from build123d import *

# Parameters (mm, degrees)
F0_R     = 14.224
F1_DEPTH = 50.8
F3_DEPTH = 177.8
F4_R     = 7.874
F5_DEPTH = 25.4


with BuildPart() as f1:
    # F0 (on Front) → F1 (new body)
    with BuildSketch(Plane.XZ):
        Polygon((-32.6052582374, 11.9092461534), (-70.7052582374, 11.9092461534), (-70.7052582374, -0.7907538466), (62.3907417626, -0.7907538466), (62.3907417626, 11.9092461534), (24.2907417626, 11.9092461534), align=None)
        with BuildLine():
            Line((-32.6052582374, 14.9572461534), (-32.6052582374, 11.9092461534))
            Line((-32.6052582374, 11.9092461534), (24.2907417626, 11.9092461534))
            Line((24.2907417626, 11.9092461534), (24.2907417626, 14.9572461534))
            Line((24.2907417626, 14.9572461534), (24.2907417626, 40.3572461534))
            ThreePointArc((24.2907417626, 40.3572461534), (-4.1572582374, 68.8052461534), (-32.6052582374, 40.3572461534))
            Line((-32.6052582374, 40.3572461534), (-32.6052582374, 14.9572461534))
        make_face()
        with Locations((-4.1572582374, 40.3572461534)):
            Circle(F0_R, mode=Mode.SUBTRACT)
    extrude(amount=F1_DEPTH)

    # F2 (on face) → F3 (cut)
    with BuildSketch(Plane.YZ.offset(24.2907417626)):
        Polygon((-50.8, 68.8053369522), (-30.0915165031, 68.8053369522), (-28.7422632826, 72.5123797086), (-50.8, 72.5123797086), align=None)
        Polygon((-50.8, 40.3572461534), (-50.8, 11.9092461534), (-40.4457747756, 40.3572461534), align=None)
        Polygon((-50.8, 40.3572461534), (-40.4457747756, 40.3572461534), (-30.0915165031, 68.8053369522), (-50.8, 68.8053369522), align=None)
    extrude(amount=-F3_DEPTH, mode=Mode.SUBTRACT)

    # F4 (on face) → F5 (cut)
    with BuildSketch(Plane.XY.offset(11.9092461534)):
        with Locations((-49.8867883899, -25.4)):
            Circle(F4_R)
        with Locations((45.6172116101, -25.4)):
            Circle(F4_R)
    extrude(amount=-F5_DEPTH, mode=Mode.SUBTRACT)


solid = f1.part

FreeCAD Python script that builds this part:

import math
import FreeCAD as App
import Part
import Sketcher

V = App.Vector
Q = App.Units.Quantity


def add_polygon(sketch, points):
    """Adds a closed chain of lines whose ends are joined by coincident constraints."""
    first, n = sketch.GeometryCount, len(points)
    for a, b in zip(points, points[1:] + points[:1]):
        sketch.addGeometry(Part.LineSegment(App.Vector(*a, 0), App.Vector(*b, 0)), False)
    for i in range(n):
        sketch.addConstraint(Sketcher.Constraint("Coincident", first + i, 2, first + (i + 1) % n, 1))

doc = App.newDocument("Part")
body = doc.addObject("PartDesign::Body", "Body")

sketch1 = body.newObject("Sketcher::SketchObject", "Sketch")
sketch1.AttachmentSupport = (doc.getObject("XZ_Plane"), [""])
sketch1.MapMode = "FlatFace"
sketch1.addGeometry(Part.LineSegment(V(-71, 12, 0), V(-71, -1, 0)), False)
sketch1.addGeometry(Part.LineSegment(V(-71, -1, 0), V(62, -1, 0)), False)
sketch1.addGeometry(Part.LineSegment(V(62, -1, 0), V(62, 12, 0)), False)
sketch1.addGeometry(Part.LineSegment(V(62, 12, 0), V(24, 12, 0)), False)
sketch1.addGeometry(Part.LineSegment(V(24, 12, 0), V(24, 40, 0)), False)
sketch1.addGeometry(Part.ArcOfCircle(Part.Circle(V(-4, 40, 0), V(0, 0, 1), 28), math.radians(0), math.radians(180)), False)
sketch1.addGeometry(Part.LineSegment(V(-33, 40, 0), V(-33, 12, 0)), False)
sketch1.addGeometry(Part.LineSegment(V(-33, 12, 0), V(-71, 12, 0)), False)
sketch1.addGeometry(Part.Circle(V(-4, 40, 0), V(0, 0, 1), 14), False)
sketch1.addConstraint(Sketcher.Constraint("Coincident", 0, 2, 1, 1))
sketch1.addConstraint(Sketcher.Constraint("Coincident", 1, 2, 2, 1))
sketch1.addConstraint(Sketcher.Constraint("Coincident", 2, 2, 3, 1))
sketch1.addConstraint(Sketcher.Constraint("Coincident", 3, 2, 4, 1))
sketch1.addConstraint(Sketcher.Constraint("Tangent", 4, 2, 5, 1))
sketch1.addConstraint(Sketcher.Constraint("Tangent", 5, 2, 6, 1))
sketch1.addConstraint(Sketcher.Constraint("Coincident", 6, 2, 7, 1))
sketch1.addConstraint(Sketcher.Constraint("Coincident", 7, 2, 0, 1))
sketch1.addConstraint(Sketcher.Constraint("Vertical", 0))
sketch1.addConstraint(Sketcher.Constraint("Horizontal", 1))
sketch1.addConstraint(Sketcher.Constraint("Vertical", 2))
sketch1.addConstraint(Sketcher.Constraint("Horizontal", 3))
sketch1.addConstraint(Sketcher.Constraint("Vertical", 4))
sketch1.addConstraint(Sketcher.Constraint("Vertical", 6))
sketch1.addConstraint(Sketcher.Constraint("Horizontal", 7))
sketch1.addConstraint(Sketcher.Constraint("Coincident", 8, 3, 5, 3))
sketch1.addConstraint(Sketcher.Constraint("Horizontal", 3, 2, 6, 2))
sketch1.addConstraint(Sketcher.Constraint("Equal", 3, 7))
sketch1.addConstraint(Sketcher.Constraint("Diameter", 8, Q("1.12 in")))
sketch1.addConstraint(Sketcher.Constraint("Radius", 5, Q("1.12 in")))
sketch1.addConstraint(Sketcher.Constraint("DistanceX", 3, 2, 3, 1, Q("1.5 in")))
sketch1.addConstraint(Sketcher.Constraint("DistanceY", 0, 2, 0, 1, Q("0.5 in")))
sketch1.addConstraint(Sketcher.Constraint("DistanceY", 4, 1, 4, 2, Q("1.12 in")))
sketch1.addConstraint(Sketcher.Constraint("DistanceX", 5, 3, -1, 1, Q("4.157258 mm")))
sketch1.addConstraint(Sketcher.Constraint("DistanceY", -1, 1, 5, 3, Q("40.357246 mm")))
pad1 = body.newObject("PartDesign::Pad", "Pad")
pad1.Profile = sketch1
pad1.Length = Q("2 in")

sketch2 = body.newObject("Sketcher::SketchObject", "Sketch001")
sketch2.AttachmentSupport = (doc.getObject("YZ_Plane"), [""])
sketch2.MapMode = "FlatFace"
sketch2.AttachmentOffset = App.Placement(V(0, 0, 24.290742), App.Rotation())
add_polygon(sketch2, [(-30.1, 68.8), (-28.7, 72.5), (-50.8, 72.5), (-50.8, 11.9), (-40.4, 40.4)])
sketch2.addConstraint(Sketcher.Constraint("Horizontal", 1))
sketch2.addConstraint(Sketcher.Constraint("Vertical", 2))
sketch2.addConstraint(Sketcher.Constraint("Parallel", 0, 3))
sketch2.addConstraint(Sketcher.Constraint("Parallel", 3, 4))
sketch2.addConstraint(Sketcher.Constraint("DistanceX", 1, 2, -1, 1, Q("2 in")))
sketch2.addConstraint(Sketcher.Constraint("Angle", 0, Q("70 deg")))
sketch2.addConstraint(Sketcher.Constraint("DistanceY", 2, 2, 3, 2, Q("1.12 in")))
sketch2.addConstraint(Sketcher.Constraint("DistanceX", 1, 2, 1, 1, Q("22.057737 mm")))
sketch2.addConstraint(Sketcher.Constraint("DistanceY", -1, 1, 0, 2, Q("72.51238 mm")))
sketch2.addConstraint(Sketcher.Constraint("DistanceX", 3, 2, 4, 2, Q("10.354258 mm")))
pocket1 = body.newObject("PartDesign::Pocket", "Pocket")
pocket1.Profile = sketch2
pocket1.Length = Q("7 in")

sketch3 = body.newObject("Sketcher::SketchObject", "Sketch002")
sketch3.AttachmentSupport = (doc.getObject("XY_Plane"), [""])
sketch3.MapMode = "FlatFace"
sketch3.AttachmentOffset = App.Placement(V(0, 0, 11.909246), App.Rotation())
sketch3.addGeometry(Part.Circle(V(-50, -25, 0), V(0, 0, 1), 8), False)
sketch3.addGeometry(Part.Circle(V(46, -25, 0), V(0, 0, 1), 8), False)
sketch3.addConstraint(Sketcher.Constraint("Equal", 0, 1))
sketch3.addConstraint(Sketcher.Constraint("Horizontal", 0, 3, 1, 3))
sketch3.addConstraint(Sketcher.Constraint("Diameter", 0, Q("0.62 in")))
sketch3.addConstraint(Sketcher.Constraint("DistanceY", 0, 3, -1, 1, Q("1 in")))
sketch3.addConstraint(Sketcher.Constraint("DistanceX", 0, 3, 1, 3, Q("3.76 in")))
sketch3.addConstraint(Sketcher.Constraint("DistanceX", 0, 3, -1, 1, Q("49.886788 mm")))
pocket2 = body.newObject("PartDesign::Pocket", "Pocket001")
pocket2.Profile = sketch3
pocket2.Length = Q("1 in")

doc.recompute()
